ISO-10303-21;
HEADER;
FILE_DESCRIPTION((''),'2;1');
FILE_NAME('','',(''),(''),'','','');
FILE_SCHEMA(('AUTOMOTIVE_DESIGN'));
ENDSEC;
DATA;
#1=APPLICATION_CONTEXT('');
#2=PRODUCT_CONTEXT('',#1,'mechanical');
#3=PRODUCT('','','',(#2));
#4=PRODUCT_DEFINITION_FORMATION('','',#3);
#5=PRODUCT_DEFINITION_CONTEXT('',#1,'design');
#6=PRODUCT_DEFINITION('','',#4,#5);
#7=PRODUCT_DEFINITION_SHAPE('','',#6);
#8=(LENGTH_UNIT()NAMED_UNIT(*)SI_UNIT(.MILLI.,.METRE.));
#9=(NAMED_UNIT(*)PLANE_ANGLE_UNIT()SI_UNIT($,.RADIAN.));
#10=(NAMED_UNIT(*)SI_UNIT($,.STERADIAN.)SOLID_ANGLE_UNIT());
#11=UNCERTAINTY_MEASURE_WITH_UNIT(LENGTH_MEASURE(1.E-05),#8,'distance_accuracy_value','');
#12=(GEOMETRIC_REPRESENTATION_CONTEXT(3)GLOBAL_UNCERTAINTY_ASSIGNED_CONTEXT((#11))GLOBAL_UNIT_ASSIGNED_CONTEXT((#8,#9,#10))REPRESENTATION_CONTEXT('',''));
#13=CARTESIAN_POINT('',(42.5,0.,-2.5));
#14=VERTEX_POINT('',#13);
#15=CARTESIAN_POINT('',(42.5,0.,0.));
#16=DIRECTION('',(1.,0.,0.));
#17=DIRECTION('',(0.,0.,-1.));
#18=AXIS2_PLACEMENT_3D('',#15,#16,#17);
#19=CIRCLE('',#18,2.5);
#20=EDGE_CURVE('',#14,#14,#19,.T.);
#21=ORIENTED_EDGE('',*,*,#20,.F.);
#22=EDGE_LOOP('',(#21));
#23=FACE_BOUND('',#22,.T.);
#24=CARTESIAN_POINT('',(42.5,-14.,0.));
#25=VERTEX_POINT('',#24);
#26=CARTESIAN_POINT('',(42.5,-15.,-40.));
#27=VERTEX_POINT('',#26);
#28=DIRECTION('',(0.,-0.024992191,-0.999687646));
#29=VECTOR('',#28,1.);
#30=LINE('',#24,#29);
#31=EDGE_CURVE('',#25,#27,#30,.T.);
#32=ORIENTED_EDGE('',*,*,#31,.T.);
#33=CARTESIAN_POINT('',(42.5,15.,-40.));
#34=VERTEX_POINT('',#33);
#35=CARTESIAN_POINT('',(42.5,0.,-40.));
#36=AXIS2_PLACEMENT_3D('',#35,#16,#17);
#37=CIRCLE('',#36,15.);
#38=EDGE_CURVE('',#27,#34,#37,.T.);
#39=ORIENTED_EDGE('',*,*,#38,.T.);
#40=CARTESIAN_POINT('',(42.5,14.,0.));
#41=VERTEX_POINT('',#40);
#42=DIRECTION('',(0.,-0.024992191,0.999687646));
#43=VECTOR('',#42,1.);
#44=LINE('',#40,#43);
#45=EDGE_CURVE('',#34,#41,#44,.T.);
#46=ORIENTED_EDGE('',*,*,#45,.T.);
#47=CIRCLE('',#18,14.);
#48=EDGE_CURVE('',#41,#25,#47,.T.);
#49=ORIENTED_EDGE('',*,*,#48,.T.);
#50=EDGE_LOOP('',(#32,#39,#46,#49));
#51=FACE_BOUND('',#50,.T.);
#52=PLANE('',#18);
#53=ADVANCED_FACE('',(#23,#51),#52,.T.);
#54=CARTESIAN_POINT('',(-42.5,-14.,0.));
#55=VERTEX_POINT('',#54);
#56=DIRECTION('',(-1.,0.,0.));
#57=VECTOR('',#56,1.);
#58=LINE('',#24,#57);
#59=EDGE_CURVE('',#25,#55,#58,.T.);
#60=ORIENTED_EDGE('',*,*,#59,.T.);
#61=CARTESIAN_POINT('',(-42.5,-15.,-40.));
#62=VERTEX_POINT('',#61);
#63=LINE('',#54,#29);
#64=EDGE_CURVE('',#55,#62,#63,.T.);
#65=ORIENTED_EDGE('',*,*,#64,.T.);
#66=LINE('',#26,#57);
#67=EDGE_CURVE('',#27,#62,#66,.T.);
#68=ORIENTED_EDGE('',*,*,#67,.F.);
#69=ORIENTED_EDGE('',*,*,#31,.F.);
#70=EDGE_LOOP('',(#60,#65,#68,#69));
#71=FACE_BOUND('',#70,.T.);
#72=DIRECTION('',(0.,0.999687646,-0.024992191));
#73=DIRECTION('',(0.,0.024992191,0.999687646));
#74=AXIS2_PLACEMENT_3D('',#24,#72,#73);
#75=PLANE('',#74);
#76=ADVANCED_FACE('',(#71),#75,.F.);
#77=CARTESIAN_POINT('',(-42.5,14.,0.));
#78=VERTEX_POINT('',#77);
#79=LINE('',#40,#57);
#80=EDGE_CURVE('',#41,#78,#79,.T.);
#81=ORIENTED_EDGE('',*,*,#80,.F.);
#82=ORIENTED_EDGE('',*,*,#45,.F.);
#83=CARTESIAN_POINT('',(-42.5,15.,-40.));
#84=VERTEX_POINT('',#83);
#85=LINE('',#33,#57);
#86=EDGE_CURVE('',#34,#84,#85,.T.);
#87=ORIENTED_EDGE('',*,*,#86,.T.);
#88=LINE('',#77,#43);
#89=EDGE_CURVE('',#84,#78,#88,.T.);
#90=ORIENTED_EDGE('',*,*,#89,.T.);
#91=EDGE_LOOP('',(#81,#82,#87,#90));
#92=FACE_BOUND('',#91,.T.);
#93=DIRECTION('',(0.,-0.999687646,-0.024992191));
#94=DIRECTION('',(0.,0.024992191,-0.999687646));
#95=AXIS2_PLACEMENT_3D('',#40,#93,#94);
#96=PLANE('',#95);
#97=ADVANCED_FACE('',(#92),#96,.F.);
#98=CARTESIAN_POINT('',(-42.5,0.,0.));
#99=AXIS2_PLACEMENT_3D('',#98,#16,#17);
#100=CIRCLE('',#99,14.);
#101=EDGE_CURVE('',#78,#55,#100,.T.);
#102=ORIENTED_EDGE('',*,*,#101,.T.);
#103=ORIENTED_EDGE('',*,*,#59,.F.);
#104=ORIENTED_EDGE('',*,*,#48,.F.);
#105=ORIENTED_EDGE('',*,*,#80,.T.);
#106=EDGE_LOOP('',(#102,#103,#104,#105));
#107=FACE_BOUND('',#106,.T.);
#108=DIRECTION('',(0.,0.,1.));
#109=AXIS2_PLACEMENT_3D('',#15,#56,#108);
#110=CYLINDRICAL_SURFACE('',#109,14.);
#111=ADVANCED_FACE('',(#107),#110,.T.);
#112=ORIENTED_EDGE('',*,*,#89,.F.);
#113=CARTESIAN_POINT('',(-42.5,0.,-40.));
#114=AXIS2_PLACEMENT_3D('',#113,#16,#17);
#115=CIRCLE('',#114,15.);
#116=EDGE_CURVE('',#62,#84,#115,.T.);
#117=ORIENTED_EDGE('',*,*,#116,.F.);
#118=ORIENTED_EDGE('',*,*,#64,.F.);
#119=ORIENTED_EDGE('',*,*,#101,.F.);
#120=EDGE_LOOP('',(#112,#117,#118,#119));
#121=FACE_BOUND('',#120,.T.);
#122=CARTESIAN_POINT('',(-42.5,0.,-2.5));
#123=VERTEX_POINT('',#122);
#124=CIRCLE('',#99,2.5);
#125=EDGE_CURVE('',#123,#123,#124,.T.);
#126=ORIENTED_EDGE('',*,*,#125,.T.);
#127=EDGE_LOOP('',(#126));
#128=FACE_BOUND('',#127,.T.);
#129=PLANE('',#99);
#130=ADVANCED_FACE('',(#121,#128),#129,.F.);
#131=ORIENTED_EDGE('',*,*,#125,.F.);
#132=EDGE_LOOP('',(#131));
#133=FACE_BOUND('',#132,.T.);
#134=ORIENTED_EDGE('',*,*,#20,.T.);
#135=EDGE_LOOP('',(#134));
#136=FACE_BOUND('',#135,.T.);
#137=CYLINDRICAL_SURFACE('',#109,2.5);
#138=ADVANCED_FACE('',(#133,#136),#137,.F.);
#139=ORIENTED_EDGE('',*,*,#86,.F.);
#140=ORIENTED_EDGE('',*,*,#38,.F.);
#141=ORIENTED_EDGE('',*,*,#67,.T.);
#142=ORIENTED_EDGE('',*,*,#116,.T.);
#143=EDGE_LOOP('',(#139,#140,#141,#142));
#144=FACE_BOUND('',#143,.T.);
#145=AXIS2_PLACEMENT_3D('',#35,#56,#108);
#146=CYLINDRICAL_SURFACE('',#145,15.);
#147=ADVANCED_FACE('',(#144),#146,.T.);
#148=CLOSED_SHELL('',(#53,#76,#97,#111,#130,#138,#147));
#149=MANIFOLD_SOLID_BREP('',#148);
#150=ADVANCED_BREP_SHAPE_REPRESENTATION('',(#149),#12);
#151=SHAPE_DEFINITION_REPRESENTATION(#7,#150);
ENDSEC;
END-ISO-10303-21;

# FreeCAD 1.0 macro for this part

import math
import FreeCAD as App
import Part
import Sketcher

doc = App.newDocument("Part")
body = doc.addObject("PartDesign::Body", "Body")

# Sketch on YZ plane
sketch1 = doc.addObject("Sketcher::SketchObject", "Sketch")
body.addObject(sketch1)
sketch1.AttachmentSupport = (doc.YZ_Plane, [""])
sketch1.MapMode = "FlatFace"
sketch1.addGeometry([
    Part.LineSegment(App.Vector(15, -40, 0), App.Vector(14, 0, 0)),  # 0
    Part.ArcOfCircle(Part.Circle(App.Vector(0, 0, 0), App.Vector(0, 0, 1), 14), math.radians(0), math.radians(180)),  # 1
    Part.LineSegment(App.Vector(-14, 0, 0), App.Vector(-15, -40, 0)),  # 2
    Part.ArcOfCircle(Part.Circle(App.Vector(0, -40, 0), App.Vector(0, 0, 1), 15), math.radians(180), math.radians(360)),  # 3
    Part.Circle(App.Vector(0, 0, 0), App.Vector(0, 0, 1), 2.5),  # 4
], False)
sketch1.addConstraint([
    Sketcher.Constraint("Coincident", 0, 2, 1, 1),
    Sketcher.Constraint("Coincident", 1, 2, 2, 1),
    Sketcher.Constraint("Coincident", 2, 2, 3, 1),
    Sketcher.Constraint("Coincident", 3, 2, 0, 1),
    Sketcher.Constraint("Coincident", 1, 3, -1, 1),
    Sketcher.Constraint("Coincident", 4, 3, -1, 1),
    Sketcher.Constraint("Symmetric", 2, 2, 3, 2, -2),
    Sketcher.Constraint("PointOnObject", 0, 2, -1),
    Sketcher.Constraint("PointOnObject", 1, 2, -1),
    Sketcher.Constraint("Horizontal", 3, 3, 2, 2),
    Sketcher.Constraint("Diameter", 4, 5.0),
    Sketcher.Constraint("Radius", 1, 14.0),
    Sketcher.Constraint("Radius", 3, 15.0),
    Sketcher.Constraint("DistanceY", 3, 3, -1, 1, 40.0),
])
pad1 = doc.addObject("PartDesign::Pad", "Pad")
body.addObject(pad1)
pad1.Profile = sketch1
pad1.Length = 85
pad1.Midplane = True

doc.recompute()
